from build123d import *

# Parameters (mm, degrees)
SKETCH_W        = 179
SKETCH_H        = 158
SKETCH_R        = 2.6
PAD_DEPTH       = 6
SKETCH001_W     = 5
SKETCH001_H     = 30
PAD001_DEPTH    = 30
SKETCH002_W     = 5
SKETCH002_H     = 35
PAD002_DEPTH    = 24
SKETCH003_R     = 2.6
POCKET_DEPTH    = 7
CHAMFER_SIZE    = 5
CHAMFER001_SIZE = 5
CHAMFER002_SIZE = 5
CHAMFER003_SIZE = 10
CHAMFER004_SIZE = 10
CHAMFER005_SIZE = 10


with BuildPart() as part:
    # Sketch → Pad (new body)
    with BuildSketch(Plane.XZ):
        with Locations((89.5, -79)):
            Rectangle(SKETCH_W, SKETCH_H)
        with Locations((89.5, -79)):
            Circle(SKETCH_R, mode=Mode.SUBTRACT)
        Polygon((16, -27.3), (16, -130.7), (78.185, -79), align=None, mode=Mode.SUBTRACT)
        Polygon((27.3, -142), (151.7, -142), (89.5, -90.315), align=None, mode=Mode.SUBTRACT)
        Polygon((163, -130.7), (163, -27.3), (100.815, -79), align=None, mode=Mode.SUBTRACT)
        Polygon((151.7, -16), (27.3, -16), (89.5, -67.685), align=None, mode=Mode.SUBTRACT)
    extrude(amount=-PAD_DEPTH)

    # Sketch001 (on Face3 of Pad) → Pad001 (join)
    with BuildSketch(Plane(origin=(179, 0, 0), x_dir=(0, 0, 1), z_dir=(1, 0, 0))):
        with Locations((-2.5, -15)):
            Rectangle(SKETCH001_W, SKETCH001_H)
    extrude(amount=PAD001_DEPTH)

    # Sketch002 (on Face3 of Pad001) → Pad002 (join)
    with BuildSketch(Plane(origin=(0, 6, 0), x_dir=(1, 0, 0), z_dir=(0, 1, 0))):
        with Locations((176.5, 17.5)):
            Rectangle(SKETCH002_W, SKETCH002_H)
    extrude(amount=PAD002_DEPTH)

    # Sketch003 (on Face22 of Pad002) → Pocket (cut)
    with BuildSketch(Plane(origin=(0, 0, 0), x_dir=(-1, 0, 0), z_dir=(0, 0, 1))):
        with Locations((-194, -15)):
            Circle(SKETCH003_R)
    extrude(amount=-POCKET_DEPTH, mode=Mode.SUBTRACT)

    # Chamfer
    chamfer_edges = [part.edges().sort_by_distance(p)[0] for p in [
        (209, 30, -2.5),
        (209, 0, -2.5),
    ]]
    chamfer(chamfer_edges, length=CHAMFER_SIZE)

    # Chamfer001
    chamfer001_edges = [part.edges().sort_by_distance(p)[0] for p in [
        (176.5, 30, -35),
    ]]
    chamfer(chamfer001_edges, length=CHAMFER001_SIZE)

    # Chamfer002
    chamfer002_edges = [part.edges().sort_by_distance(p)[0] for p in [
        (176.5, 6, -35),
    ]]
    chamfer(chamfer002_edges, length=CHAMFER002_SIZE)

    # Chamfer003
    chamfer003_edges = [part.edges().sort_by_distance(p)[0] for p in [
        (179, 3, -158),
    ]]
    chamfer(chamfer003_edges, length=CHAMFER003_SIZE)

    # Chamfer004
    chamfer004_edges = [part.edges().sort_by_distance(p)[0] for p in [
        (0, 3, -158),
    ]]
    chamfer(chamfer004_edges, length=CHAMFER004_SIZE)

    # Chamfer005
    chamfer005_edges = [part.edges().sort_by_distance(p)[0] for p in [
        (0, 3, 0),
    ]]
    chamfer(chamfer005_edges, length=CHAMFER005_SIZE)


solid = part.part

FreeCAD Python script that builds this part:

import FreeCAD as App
import Part
import Sketcher
from FreeCAD import Vector


def edges_at(feature, points):
    """Names of the edges that pass closest to the given points."""
    edges = feature.Shape.Edges
    near = lambda p: min(range(len(edges)), key=lambda i: edges[i].distToShape(Part.Vertex(*p))[0])
    return sorted({f"Edge{near(p) + 1}" for p in points})


def add_polygon(sketch, points):
    """Adds a closed chain of lines whose ends are joined by coincident constraints."""
    first, n = sketch.GeometryCount, len(points)
    for a, b in zip(points, points[1:] + points[:1]):
        sketch.addGeometry(Part.LineSegment(App.Vector(*a, 0), App.Vector(*b, 0)), False)
    for i in range(n):
        sketch.addConstraint(Sketcher.Constraint("Coincident", first + i, 2, first + (i + 1) % n, 1))

doc = App.newDocument("Part")
body = doc.addObject("PartDesign::Body", "Body")

# Sketch on XZ plane
sketch1 = body.newObject("Sketcher::SketchObject", "Sketch")
sketch1.AttachmentSupport = (doc.getObject("XZ_Plane"), [""])
sketch1.MapMode = "FlatFace"
add_polygon(sketch1, [(0, 0), (0, -158), (179, -158), (179, 0)])  # lines 0-3
add_polygon(sketch1, [(151.7, -142), (27.3, -142), (89.5, -90.3)])  # lines 4-6
add_polygon(sketch1, [(16, -130.7), (16, -27.3), (78.2, -79)])  # lines 7-9
sketch1.addGeometry(Part.Circle(Vector(89.5, -79, 0), Vector(0, 0, 1), 2.6), False)  # 10
add_polygon(sketch1, [(163, -27.3), (163, -130.7), (100.8, -79)])  # lines 11-13
add_polygon(sketch1, [(27.3, -16), (151.7, -16), (89.5, -67.7)])  # lines 14-16
sketch1.addConstraint(Sketcher.Constraint("Vertical", 0))
sketch1.addConstraint(Sketcher.Constraint("Horizontal", 1))
sketch1.addConstraint(Sketcher.Constraint("Vertical", 2))
sketch1.addConstraint(Sketcher.Constraint("Horizontal", 3))
sketch1.addConstraint(Sketcher.Constraint("Horizontal", 4))
sketch1.addConstraint(Sketcher.Constraint("Vertical", 7))
sketch1.addConstraint(Sketcher.Constraint("Vertical", 11))
sketch1.addConstraint(Sketcher.Constraint("Horizontal", 14))
sketch1.addConstraint(Sketcher.Constraint("Coincident", 3, 2, -1, 1))
sketch1.addConstraint(Sketcher.Constraint("Parallel", 8, 12))
sketch1.addConstraint(Sketcher.Constraint("Parallel", 9, 13))
sketch1.addConstraint(Sketcher.Constraint("Parallel", 5, 15))
sketch1.addConstraint(Sketcher.Constraint("Parallel", 6, 16))
sketch1.addConstraint(Sketcher.Constraint("Horizontal", 10, 3, 8, 2))
sketch1.addConstraint(Sketcher.Constraint("Horizontal", 9, 2, 11, 2))
sketch1.addConstraint(Sketcher.Constraint("Horizontal", 8, 2, 12, 2))
sketch1.addConstraint(Sketcher.Constraint("Horizontal", 7, 2, 13, 2))
sketch1.addConstraint(Sketcher.Constraint("Vertical", 10, 3, 5, 2))
sketch1.addConstraint(Sketcher.Constraint("Vertical", 6, 2, 14, 2))
sketch1.addConstraint(Sketcher.Constraint("Vertical", 5, 2, 15, 2))
sketch1.addConstraint(Sketcher.Constraint("Vertical", 4, 2, 16, 2))
sketch1.addConstraint(Sketcher.Constraint("Diameter", 10, 5.2))
sketch1.addConstraint(Sketcher.Constraint("DistanceX", 1, 1, 1, 2, 179.0))
sketch1.addConstraint(Sketcher.Constraint("DistanceY", 0, 2, 0, 1, 158.0))
sketch1.addConstraint(Sketcher.Constraint("DistanceX", 4, 2, 4, 1, 124.4))
sketch1.addConstraint(Sketcher.Constraint("DistanceY", 7, 1, 7, 2, 103.4))
sketch1.addConstraint(Sketcher.Constraint("DistanceY", 10, 3, -1, 1, 79.0))
sketch1.addConstraint(Sketcher.Constraint("DistanceY", 4, 2, -1, 1, 142.0))
sketch1.addConstraint(Sketcher.Constraint("DistanceX", -1, 1, 7, 2, 16.0))
sketch1.addConstraint(Sketcher.Constraint("DistanceX", -1, 1, 11, 2, 163.0))
sketch1.addConstraint(Sketcher.Constraint("DistanceY", 14, 2, -1, 1, 16.0))
sketch1.addConstraint(Sketcher.Constraint("DistanceX", -1, 1, 10, 3, 89.5))
sketch1.addConstraint(Sketcher.Constraint("DistanceX", 8, 2, 12, 2, 22.63))
sketch1.addConstraint(Sketcher.Constraint("DistanceY", 5, 2, 15, 2, 22.63))
pad1 = body.newObject("PartDesign::Pad", "Pad")
pad1.Profile = sketch1
pad1.Length = 6
pad1.Reversed = True

# Sketch on YZ plane
sketch2 = body.newObject("Sketcher::SketchObject", "Sketch001")
sketch2.AttachmentSupport = (doc.getObject("YZ_Plane"), [""])
sketch2.MapMode = "FlatFace"
sketch2.AttachmentOffset = App.Placement(Vector(0, 0, 179), App.Rotation())
add_polygon(sketch2, [(0, -5), (30, -5), (30, 0), (0, 0)])  # lines 0-3
sketch2.addConstraint(Sketcher.Constraint("Horizontal", 0))
sketch2.addConstraint(Sketcher.Constraint("Vertical", 1))
sketch2.addConstraint(Sketcher.Constraint("Horizontal", 2))
sketch2.addConstraint(Sketcher.Constraint("Vertical", 3))
sketch2.addConstraint(Sketcher.Constraint("Coincident", 2, 2, -1, 1))
sketch2.addConstraint(Sketcher.Constraint("DistanceX", 0, 1, 0, 2, 30.0))
sketch2.addConstraint(Sketcher.Constraint("DistanceY", 1, 1, 1, 2, 5.0))
pad2 = body.newObject("PartDesign::Pad", "Pad001")
pad2.Profile = sketch2
pad2.Length = 30

# Sketch on XZ plane
sketch3 = body.newObject("Sketcher::SketchObject", "Sketch002")
sketch3.AttachmentSupport = (doc.getObject("XZ_Plane"), [""])
sketch3.MapMode = "FlatFace"
sketch3.AttachmentOffset = App.Placement(Vector(0, 0, -6), App.Rotation())
add_polygon(sketch3, [(174, -35), (174, 0), (179, 0), (179, -35)])  # lines 0-3
sketch3.addConstraint(Sketcher.Constraint("Vertical", 0))
sketch3.addConstraint(Sketcher.Constraint("Horizontal", 1))
sketch3.addConstraint(Sketcher.Constraint("Vertical", 2))
sketch3.addConstraint(Sketcher.Constraint("Horizontal", 3))
sketch3.addConstraint(Sketcher.Constraint("PointOnObject", 0, 2, -1))
sketch3.addConstraint(Sketcher.Constraint("DistanceX", 1, 1, 1, 2, 5.0))
sketch3.addConstraint(Sketcher.Constraint("DistanceY", 0, 1, 0, 2, 35.0))
sketch3.addConstraint(Sketcher.Constraint("DistanceX", -1, 1, 0, 2, 174.0))
pad3 = body.newObject("PartDesign::Pad", "Pad002")
pad3.Profile = sketch3
pad3.Length = 24
pad3.Reversed = True

# Sketch on XY plane
sketch4 = body.newObject("Sketcher::SketchObject", "Sketch003")
sketch4.AttachmentSupport = (doc.getObject("XY_Plane"), [""])
sketch4.MapMode = "FlatFace"
sketch4.addGeometry(Part.Circle(Vector(194, 15, 0), Vector(0, 0, 1), 2.6), False)
sketch4.addConstraint(Sketcher.Constraint("Diameter", 0, 5.2))
sketch4.addConstraint(Sketcher.Constraint("DistanceX", -1, 1, 0, 3, 194.0))
sketch4.addConstraint(Sketcher.Constraint("DistanceY", -1, 1, 0, 3, 15.0))
pocket1 = body.newObject("PartDesign::Pocket", "Pocket")
pocket1.Profile = sketch4
pocket1.Length = 7
doc.recompute()

chamfer = body.newObject("PartDesign::Chamfer", "Chamfer")
chamfer.Base = (pocket1, edges_at(pocket1, [(209, 30, -2.5), (209, 0, -2.5)]))
chamfer.Size = 5
doc.recompute()

chamfer2 = body.newObject("PartDesign::Chamfer", "Chamfer001")
chamfer2.Base = (chamfer, edges_at(chamfer, [(176.5, 30, -35)]))
chamfer2.Size = 5
doc.recompute()

chamfer3 = body.newObject("PartDesign::Chamfer", "Chamfer002")
chamfer3.Base = (chamfer2, edges_at(chamfer2, [(176.5, 6, -35)]))
chamfer3.Size = 5
doc.recompute()

chamfer4 = body.newObject("PartDesign::Chamfer", "Chamfer003")
chamfer4.Base = (chamfer3, edges_at(chamfer3, [(179, 3, -158)]))
chamfer4.Size = 10
doc.recompute()

chamfer5 = body.newObject("PartDesign::Chamfer", "Chamfer004")
chamfer5.Base = (chamfer4, edges_at(chamfer4, [(0, 3, -158)]))
chamfer5.Size = 10
doc.recompute()

chamfer6 = body.newObject("PartDesign::Chamfer", "Chamfer005")
chamfer6.Base = (chamfer5, edges_at(chamfer5, [(0, 3, 0)]))
chamfer6.Size = 10

doc.recompute()
